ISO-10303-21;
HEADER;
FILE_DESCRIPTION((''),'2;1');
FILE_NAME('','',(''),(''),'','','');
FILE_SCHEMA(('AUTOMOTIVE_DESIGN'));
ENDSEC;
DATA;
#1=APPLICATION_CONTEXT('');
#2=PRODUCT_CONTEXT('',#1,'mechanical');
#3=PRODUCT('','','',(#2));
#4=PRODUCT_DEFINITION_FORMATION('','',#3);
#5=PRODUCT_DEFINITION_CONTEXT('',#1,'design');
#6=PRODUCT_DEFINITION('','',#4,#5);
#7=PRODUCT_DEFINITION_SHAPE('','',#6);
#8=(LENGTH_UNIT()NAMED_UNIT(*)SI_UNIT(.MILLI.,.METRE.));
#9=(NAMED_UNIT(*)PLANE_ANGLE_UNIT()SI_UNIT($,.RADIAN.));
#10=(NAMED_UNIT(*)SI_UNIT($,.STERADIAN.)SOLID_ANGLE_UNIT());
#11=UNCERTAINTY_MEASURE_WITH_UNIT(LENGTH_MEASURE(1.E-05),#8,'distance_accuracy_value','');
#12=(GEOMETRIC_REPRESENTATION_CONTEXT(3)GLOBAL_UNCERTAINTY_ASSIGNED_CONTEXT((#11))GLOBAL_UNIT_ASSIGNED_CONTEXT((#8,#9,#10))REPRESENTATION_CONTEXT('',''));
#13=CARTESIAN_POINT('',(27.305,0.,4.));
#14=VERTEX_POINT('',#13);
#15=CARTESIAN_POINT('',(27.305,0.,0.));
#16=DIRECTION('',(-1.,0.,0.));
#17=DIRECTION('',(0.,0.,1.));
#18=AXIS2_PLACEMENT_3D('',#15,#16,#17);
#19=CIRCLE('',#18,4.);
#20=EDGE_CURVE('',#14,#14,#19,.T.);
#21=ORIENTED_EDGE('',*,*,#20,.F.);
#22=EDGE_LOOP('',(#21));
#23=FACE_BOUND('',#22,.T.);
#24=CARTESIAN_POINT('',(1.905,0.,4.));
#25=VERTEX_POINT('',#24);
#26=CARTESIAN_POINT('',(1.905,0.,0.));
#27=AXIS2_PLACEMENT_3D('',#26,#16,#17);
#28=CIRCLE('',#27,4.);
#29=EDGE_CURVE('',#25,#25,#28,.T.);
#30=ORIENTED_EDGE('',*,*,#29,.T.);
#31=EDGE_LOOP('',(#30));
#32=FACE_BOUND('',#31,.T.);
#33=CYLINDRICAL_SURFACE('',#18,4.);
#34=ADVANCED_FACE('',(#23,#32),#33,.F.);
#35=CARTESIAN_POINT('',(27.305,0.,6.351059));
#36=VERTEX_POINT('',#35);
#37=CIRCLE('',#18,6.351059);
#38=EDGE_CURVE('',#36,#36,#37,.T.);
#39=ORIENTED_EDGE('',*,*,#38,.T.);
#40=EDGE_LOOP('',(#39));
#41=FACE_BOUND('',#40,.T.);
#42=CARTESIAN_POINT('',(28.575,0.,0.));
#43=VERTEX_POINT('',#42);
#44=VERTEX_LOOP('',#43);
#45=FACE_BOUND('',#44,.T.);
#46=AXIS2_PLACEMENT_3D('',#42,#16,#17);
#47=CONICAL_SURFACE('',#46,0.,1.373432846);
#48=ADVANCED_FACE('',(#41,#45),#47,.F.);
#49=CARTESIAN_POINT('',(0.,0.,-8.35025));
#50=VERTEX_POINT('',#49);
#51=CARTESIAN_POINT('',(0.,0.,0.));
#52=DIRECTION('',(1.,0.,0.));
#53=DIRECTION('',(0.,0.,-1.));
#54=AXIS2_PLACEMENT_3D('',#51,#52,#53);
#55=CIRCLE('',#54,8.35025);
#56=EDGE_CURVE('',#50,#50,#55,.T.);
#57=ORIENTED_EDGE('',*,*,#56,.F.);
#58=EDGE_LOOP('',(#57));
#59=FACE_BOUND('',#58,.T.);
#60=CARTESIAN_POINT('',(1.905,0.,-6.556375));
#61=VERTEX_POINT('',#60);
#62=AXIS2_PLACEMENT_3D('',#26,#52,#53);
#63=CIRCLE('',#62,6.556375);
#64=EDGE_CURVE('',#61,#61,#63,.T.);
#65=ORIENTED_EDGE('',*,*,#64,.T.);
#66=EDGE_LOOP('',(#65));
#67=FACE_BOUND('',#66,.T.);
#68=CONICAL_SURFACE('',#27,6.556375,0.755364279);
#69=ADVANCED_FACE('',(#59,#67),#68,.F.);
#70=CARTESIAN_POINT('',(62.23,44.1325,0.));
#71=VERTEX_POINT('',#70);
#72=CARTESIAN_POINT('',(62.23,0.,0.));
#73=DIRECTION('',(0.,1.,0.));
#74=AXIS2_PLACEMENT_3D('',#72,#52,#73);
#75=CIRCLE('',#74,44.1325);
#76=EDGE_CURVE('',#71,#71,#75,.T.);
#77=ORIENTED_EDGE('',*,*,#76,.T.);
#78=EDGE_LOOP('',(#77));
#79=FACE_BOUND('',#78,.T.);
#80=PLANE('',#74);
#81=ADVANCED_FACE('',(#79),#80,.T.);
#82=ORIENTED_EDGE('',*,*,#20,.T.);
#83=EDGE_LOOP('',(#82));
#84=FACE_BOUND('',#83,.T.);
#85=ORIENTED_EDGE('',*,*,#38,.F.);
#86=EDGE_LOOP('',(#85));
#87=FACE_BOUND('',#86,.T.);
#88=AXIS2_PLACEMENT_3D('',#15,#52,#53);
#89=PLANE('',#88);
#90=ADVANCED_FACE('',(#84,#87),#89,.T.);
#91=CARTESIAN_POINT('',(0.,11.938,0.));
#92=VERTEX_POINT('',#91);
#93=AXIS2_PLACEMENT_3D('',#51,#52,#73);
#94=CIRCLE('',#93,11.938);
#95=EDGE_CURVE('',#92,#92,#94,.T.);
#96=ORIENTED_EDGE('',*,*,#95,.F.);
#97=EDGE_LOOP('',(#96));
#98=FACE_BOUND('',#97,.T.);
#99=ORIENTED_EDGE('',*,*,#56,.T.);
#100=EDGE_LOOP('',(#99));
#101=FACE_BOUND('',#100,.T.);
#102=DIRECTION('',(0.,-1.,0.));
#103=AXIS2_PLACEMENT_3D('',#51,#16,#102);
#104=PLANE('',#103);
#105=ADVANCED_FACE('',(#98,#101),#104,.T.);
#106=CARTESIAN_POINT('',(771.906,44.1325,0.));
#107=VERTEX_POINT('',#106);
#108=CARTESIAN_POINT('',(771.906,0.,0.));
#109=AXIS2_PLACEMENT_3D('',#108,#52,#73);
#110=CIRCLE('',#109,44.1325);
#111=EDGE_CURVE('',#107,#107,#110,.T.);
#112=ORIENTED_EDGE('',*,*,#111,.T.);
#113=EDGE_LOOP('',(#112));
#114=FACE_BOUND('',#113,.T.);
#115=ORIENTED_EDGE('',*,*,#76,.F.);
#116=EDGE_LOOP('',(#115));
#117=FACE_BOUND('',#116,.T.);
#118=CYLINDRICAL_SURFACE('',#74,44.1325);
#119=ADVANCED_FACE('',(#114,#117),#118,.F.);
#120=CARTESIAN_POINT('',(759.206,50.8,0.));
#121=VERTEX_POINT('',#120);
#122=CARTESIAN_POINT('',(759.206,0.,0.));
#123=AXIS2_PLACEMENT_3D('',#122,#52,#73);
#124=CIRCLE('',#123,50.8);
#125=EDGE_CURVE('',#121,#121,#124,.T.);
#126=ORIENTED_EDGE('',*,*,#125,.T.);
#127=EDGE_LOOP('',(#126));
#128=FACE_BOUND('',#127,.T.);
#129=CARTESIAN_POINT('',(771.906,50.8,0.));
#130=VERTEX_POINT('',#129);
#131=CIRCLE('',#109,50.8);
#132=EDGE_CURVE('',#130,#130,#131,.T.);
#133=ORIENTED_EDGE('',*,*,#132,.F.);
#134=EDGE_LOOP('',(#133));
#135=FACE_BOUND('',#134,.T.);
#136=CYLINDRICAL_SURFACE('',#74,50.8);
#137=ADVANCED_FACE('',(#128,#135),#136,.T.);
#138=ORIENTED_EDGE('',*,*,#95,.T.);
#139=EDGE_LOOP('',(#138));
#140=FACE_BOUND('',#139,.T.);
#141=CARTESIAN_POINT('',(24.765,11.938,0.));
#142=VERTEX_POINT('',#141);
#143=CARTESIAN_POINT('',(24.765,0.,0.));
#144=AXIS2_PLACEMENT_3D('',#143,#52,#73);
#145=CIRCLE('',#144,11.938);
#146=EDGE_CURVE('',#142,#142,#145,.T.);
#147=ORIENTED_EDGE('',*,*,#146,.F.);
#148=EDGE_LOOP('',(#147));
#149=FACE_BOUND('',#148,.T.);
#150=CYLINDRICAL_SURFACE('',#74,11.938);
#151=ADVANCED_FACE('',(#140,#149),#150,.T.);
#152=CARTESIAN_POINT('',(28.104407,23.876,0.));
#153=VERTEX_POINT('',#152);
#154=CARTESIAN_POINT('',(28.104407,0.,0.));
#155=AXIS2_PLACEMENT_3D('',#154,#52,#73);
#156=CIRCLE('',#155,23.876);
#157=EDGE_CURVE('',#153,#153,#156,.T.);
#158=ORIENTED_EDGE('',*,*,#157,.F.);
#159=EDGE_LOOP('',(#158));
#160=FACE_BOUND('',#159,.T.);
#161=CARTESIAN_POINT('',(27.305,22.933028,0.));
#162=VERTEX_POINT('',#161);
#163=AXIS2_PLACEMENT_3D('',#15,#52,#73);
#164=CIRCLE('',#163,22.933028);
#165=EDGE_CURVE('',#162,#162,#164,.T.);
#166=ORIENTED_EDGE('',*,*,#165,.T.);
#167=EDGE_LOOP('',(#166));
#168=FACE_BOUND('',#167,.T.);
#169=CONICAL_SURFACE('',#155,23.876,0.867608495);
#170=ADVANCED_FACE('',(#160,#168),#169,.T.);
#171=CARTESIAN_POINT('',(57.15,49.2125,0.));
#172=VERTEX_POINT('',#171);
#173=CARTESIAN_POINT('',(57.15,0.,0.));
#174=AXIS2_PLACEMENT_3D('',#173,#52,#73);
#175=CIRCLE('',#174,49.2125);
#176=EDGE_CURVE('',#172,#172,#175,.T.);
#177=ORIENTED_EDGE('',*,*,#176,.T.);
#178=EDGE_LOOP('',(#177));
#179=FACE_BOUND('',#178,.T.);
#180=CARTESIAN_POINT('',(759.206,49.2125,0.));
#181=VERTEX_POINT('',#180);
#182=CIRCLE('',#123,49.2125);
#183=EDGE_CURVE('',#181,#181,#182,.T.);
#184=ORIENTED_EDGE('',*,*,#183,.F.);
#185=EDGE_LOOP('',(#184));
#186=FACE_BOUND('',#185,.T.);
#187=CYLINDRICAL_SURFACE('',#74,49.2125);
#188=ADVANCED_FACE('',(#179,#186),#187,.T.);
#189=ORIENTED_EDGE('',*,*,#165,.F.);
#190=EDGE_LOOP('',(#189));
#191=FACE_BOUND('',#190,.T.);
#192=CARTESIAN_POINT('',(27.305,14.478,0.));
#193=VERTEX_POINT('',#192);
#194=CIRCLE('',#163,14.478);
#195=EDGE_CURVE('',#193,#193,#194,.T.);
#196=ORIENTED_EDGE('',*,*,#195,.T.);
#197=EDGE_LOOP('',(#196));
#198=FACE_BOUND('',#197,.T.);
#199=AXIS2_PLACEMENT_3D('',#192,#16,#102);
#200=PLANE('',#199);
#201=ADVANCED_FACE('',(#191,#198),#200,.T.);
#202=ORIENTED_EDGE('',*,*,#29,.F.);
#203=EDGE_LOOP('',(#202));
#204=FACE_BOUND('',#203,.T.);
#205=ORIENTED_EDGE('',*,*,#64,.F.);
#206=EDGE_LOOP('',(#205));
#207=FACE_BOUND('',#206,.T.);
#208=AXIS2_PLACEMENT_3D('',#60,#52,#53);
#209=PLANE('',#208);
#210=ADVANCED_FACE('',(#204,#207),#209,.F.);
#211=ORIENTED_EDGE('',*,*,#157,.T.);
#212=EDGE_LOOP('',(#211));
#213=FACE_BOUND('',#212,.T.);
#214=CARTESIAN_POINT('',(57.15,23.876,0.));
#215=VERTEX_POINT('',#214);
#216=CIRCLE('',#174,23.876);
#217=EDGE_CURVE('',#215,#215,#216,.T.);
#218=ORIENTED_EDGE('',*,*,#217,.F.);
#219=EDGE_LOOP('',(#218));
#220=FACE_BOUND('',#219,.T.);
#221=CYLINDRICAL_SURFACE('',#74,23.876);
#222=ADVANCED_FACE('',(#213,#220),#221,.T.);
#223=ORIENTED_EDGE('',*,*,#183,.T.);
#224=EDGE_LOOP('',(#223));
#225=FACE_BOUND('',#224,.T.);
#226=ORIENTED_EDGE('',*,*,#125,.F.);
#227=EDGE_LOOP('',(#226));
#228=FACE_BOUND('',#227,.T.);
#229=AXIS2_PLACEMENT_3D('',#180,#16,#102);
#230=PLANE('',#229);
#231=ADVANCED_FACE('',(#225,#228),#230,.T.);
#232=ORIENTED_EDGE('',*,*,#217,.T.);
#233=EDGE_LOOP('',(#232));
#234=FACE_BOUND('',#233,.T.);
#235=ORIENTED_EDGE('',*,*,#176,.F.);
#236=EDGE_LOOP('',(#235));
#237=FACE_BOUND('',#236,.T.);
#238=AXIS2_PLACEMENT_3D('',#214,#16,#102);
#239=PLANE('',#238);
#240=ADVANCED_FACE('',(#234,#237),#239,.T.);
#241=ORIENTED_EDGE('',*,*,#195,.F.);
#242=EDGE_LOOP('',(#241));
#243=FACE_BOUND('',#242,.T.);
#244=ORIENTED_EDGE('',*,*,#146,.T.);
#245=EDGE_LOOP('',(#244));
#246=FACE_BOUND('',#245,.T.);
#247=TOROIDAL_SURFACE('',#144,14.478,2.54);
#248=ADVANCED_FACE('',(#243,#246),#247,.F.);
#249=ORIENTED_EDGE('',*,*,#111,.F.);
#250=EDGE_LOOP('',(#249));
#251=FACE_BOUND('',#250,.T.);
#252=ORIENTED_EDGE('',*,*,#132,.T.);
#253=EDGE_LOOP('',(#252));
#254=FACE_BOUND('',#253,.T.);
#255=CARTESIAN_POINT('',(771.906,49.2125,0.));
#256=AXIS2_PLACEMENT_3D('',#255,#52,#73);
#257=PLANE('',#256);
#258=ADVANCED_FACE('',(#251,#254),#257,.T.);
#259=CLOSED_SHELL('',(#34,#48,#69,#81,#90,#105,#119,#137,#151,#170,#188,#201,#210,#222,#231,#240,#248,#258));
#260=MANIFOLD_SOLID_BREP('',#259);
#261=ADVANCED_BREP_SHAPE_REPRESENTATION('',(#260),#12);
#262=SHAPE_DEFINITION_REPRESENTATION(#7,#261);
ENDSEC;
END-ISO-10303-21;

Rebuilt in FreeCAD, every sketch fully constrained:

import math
import FreeCAD as App
import Part
import Sketcher
from FreeCAD import Vector
Q = App.Units.Quantity


def add_polygon(sketch, points):
    """Adds a closed chain of lines whose ends are joined by coincident constraints."""
    first, n = sketch.GeometryCount, len(points)
    for a, b in zip(points, points[1:] + points[:1]):
        sketch.addGeometry(Part.LineSegment(App.Vector(*a, 0), App.Vector(*b, 0)), False)
    for i in range(n):
        sketch.addConstraint(Sketcher.Constraint("Coincident", first + i, 2, first + (i + 1) % n, 1))

doc = App.newDocument("Part")
body = doc.addObject("PartDesign::Body", "Body")

# Sketch on XY plane
sketch1 = body.newObject("Sketcher::SketchObject", "Sketch")
sketch1.AttachmentSupport = (doc.getObject("XY_Plane"), [""])
sketch1.MapMode = "FlatFace"
sketch1.addGeometry(Part.LineSegment(Vector(0, 11.9, 0), Vector(0, 0, 0)), False)
sketch1.addGeometry(Part.LineSegment(Vector(0, 0, 0), Vector(62.2, 0, 0)), False)
sketch1.addGeometry(Part.LineSegment(Vector(62.2, 0, 0), Vector(62.2, 44.1, 0)), False)
sketch1.addGeometry(Part.LineSegment(Vector(62.2, 44.1, 0), Vector(771.9, 44.1, 0)), False)
sketch1.addGeometry(Part.LineSegment(Vector(771.9, 44.1, 0), Vector(771.9, 50.8, 0)), False)
sketch1.addGeometry(Part.LineSegment(Vector(771.9, 50.8, 0), Vector(759.2, 50.8, 0)), False)
sketch1.addGeometry(Part.LineSegment(Vector(759.2, 50.8, 0), Vector(759.2, 49.2, 0)), False)
sketch1.addGeometry(Part.LineSegment(Vector(759.2, 49.2, 0), Vector(57.1, 49.2, 0)), False)
sketch1.addGeometry(Part.LineSegment(Vector(57.1, 49.2, 0), Vector(57.1, 23.9, 0)), False)
sketch1.addGeometry(Part.LineSegment(Vector(57.1, 23.9, 0), Vector(28.1, 23.9, 0)), False)
sketch1.addGeometry(Part.LineSegment(Vector(28.1, 23.9, 0), Vector(27.3, 22.9, 0)), False)
sketch1.addGeometry(Part.LineSegment(Vector(27.3, 22.9, 0), Vector(27.3, 14.5, 0)), False)
sketch1.addGeometry(Part.ArcOfCircle(Part.Circle(Vector(24.8, 14.5, 0), Vector(0, 0, 1), 2.5), math.radians(-90), math.radians(0)), False)
sketch1.addGeometry(Part.LineSegment(Vector(24.8, 11.9, 0), Vector(0, 11.9, 0)), False)
sketch1.addConstraint(Sketcher.Constraint("Coincident", 0, 2, 1, 1))
sketch1.addConstraint(Sketcher.Constraint("Coincident", 1, 2, 2, 1))
sketch1.addConstraint(Sketcher.Constraint("Coincident", 2, 2, 3, 1))
sketch1.addConstraint(Sketcher.Constraint("Coincident", 3, 2, 4, 1))
sketch1.addConstraint(Sketcher.Constraint("Coincident", 4, 2, 5, 1))
sketch1.addConstraint(Sketcher.Constraint("Coincident", 5, 2, 6, 1))
sketch1.addConstraint(Sketcher.Constraint("Coincident", 6, 2, 7, 1))
sketch1.addConstraint(Sketcher.Constraint("Coincident", 7, 2, 8, 1))
sketch1.addConstraint(Sketcher.Constraint("Coincident", 8, 2, 9, 1))
sketch1.addConstraint(Sketcher.Constraint("Coincident", 9, 2, 10, 1))
sketch1.addConstraint(Sketcher.Constraint("Coincident", 10, 2, 11, 1))
sketch1.addConstraint(Sketcher.Constraint("Tangent", 11, 2, 12, 2))
sketch1.addConstraint(Sketcher.Constraint("Tangent", 12, 1, 13, 1))
sketch1.addConstraint(Sketcher.Constraint("Coincident", 13, 2, 0, 1))
sketch1.addConstraint(Sketcher.Constraint("Vertical", 0))
sketch1.addConstraint(Sketcher.Constraint("Horizontal", 1))
sketch1.addConstraint(Sketcher.Constraint("Vertical", 2))
sketch1.addConstraint(Sketcher.Constraint("Horizontal", 3))
sketch1.addConstraint(Sketcher.Constraint("Vertical", 4))
sketch1.addConstraint(Sketcher.Constraint("Horizontal", 5))
sketch1.addConstraint(Sketcher.Constraint("Vertical", 6))
sketch1.addConstraint(Sketcher.Constraint("Horizontal", 7))
sketch1.addConstraint(Sketcher.Constraint("Vertical", 8))
sketch1.addConstraint(Sketcher.Constraint("Horizontal", 9))
sketch1.addConstraint(Sketcher.Constraint("Vertical", 11))
sketch1.addConstraint(Sketcher.Constraint("Horizontal", 13))
sketch1.addConstraint(Sketcher.Constraint("Coincident", 0, 2, -1, 1))
sketch1.addConstraint(Sketcher.Constraint("Radius", 12, Q("0.1 in")))
sketch1.addConstraint(Sketcher.Constraint("DistanceX", 5, 2, 5, 1, Q("0.5 in")))
sketch1.addConstraint(Sketcher.Constraint("DistanceY", -1, 1, 4, 2, Q("2 in")))
sketch1.addConstraint(Sketcher.Constraint("DistanceX", 1, 1, 1, 2, Q("2.45 in")))
sketch1.addConstraint(Sketcher.Constraint("DistanceX", 3, 1, 3, 2, Q("27.94 in")))
sketch1.addConstraint(Sketcher.Constraint("DistanceX", 7, 2, 7, 1, Q("27.64 in")))
sketch1.addConstraint(Sketcher.Constraint("DistanceY", 0, 2, 0, 1, Q("0.47 in")))
sketch1.addConstraint(Sketcher.Constraint("DistanceY", 3, 2, 6, 2, Q("0.2 in")))
sketch1.addConstraint(Sketcher.Constraint("DistanceX", 13, 2, 13, 1, Q("0.975 in")))
sketch1.addConstraint(Sketcher.Constraint("DistanceY", 6, 2, 6, 1, Q("0.0625 in")))
sketch1.addConstraint(Sketcher.Constraint("DistanceY", -1, 1, 8, 2, Q("0.94 in")))
sketch1.addConstraint(Sketcher.Constraint("DistanceY", 11, 2, 11, 1, 8.455028))
sketch1.addConstraint(Sketcher.Constraint("DistanceX", 9, 2, 9, 1, 29.045593))
revolution = body.newObject("PartDesign::Revolution", "Revolution")
revolution.Profile = sketch1
revolution.ReferenceAxis = (sketch1, ["H_Axis"])
revolution.Angle = 360

# Sketch on XZ plane
sketch2 = body.newObject("Sketcher::SketchObject", "Sketch001")
sketch2.AttachmentSupport = (doc.getObject("XZ_Plane"), [""])
sketch2.MapMode = "FlatFace"
add_polygon(sketch2, [(0, -8.4), (0, 0), (1.9, 0), (1.9, -6.6)])  # lines 0-3
sketch2.addConstraint(Sketcher.Constraint("Vertical", 0))
sketch2.addConstraint(Sketcher.Constraint("Horizontal", 1))
sketch2.addConstraint(Sketcher.Constraint("Vertical", 2))
sketch2.addConstraint(Sketcher.Constraint("Coincident", 0, 2, -1, 1))
sketch2.addConstraint(Sketcher.Constraint("DistanceX", 1, 1, 1, 2, Q("0.075 in")))
sketch2.addConstraint(Sketcher.Constraint("DistanceY", 0, 1, 0, 2, 8.35025))
sketch2.addConstraint(Sketcher.Constraint("Distance", 3, 2.61668))
groove = body.newObject("PartDesign::Groove", "Groove")
groove.Profile = sketch2
groove.ReferenceAxis = (sketch2, ["H_Axis"])
groove.Angle = 360

# Sketch on YZ plane
sketch3 = body.newObject("Sketcher::SketchObject", "Sketch002")
sketch3.AttachmentSupport = (doc.getObject("YZ_Plane"), [""])
sketch3.MapMode = "FlatFace"
sketch3.AttachmentOffset = App.Placement(Vector(0, 0, 0.075 * 25.4), App.Rotation())
sketch3.addGeometry(Part.Circle(Vector(0, 0, 0), Vector(0, 0, 1), 4), False)
sketch3.addConstraint(Sketcher.Constraint("Coincident", 0, 3, -1, 1))
sketch3.addConstraint(Sketcher.Constraint("Diameter", 0, 8.0))
pocket1 = body.newObject("PartDesign::Pocket", "Pocket")
pocket1.Profile = sketch3
pocket1.Length = Q("1 in")
pocket1.Reversed = True

# Sketch on XZ plane
sketch4 = body.newObject("Sketcher::SketchObject", "Sketch003")
sketch4.AttachmentSupport = (doc.getObject("XZ_Plane"), [""])
sketch4.MapMode = "FlatFace"
add_polygon(sketch4, [(27.3, 0), (28.6, 0), (27.3, -6.4)])  # lines 0-2
sketch4.addConstraint(Sketcher.Constraint("Horizontal", 0))
sketch4.addConstraint(Sketcher.Constraint("Vertical", 2))
sketch4.addConstraint(Sketcher.Constraint("PointOnObject", 0, 2, -1))
sketch4.addConstraint(Sketcher.Constraint("DistanceX", 0, 1, 0, 2, Q("0.05 in")))
sketch4.addConstraint(Sketcher.Constraint("DistanceX", -1, 1, 0, 2, Q("1.125 in")))
sketch4.addConstraint(Sketcher.Constraint("DistanceY", 2, 1, 2, 2, 6.351059))
groove2 = body.newObject("PartDesign::Groove", "Groove001")
groove2.Profile = sketch4
groove2.ReferenceAxis = (sketch4, ["H_Axis"])
groove2.Angle = 360

doc.recompute()
